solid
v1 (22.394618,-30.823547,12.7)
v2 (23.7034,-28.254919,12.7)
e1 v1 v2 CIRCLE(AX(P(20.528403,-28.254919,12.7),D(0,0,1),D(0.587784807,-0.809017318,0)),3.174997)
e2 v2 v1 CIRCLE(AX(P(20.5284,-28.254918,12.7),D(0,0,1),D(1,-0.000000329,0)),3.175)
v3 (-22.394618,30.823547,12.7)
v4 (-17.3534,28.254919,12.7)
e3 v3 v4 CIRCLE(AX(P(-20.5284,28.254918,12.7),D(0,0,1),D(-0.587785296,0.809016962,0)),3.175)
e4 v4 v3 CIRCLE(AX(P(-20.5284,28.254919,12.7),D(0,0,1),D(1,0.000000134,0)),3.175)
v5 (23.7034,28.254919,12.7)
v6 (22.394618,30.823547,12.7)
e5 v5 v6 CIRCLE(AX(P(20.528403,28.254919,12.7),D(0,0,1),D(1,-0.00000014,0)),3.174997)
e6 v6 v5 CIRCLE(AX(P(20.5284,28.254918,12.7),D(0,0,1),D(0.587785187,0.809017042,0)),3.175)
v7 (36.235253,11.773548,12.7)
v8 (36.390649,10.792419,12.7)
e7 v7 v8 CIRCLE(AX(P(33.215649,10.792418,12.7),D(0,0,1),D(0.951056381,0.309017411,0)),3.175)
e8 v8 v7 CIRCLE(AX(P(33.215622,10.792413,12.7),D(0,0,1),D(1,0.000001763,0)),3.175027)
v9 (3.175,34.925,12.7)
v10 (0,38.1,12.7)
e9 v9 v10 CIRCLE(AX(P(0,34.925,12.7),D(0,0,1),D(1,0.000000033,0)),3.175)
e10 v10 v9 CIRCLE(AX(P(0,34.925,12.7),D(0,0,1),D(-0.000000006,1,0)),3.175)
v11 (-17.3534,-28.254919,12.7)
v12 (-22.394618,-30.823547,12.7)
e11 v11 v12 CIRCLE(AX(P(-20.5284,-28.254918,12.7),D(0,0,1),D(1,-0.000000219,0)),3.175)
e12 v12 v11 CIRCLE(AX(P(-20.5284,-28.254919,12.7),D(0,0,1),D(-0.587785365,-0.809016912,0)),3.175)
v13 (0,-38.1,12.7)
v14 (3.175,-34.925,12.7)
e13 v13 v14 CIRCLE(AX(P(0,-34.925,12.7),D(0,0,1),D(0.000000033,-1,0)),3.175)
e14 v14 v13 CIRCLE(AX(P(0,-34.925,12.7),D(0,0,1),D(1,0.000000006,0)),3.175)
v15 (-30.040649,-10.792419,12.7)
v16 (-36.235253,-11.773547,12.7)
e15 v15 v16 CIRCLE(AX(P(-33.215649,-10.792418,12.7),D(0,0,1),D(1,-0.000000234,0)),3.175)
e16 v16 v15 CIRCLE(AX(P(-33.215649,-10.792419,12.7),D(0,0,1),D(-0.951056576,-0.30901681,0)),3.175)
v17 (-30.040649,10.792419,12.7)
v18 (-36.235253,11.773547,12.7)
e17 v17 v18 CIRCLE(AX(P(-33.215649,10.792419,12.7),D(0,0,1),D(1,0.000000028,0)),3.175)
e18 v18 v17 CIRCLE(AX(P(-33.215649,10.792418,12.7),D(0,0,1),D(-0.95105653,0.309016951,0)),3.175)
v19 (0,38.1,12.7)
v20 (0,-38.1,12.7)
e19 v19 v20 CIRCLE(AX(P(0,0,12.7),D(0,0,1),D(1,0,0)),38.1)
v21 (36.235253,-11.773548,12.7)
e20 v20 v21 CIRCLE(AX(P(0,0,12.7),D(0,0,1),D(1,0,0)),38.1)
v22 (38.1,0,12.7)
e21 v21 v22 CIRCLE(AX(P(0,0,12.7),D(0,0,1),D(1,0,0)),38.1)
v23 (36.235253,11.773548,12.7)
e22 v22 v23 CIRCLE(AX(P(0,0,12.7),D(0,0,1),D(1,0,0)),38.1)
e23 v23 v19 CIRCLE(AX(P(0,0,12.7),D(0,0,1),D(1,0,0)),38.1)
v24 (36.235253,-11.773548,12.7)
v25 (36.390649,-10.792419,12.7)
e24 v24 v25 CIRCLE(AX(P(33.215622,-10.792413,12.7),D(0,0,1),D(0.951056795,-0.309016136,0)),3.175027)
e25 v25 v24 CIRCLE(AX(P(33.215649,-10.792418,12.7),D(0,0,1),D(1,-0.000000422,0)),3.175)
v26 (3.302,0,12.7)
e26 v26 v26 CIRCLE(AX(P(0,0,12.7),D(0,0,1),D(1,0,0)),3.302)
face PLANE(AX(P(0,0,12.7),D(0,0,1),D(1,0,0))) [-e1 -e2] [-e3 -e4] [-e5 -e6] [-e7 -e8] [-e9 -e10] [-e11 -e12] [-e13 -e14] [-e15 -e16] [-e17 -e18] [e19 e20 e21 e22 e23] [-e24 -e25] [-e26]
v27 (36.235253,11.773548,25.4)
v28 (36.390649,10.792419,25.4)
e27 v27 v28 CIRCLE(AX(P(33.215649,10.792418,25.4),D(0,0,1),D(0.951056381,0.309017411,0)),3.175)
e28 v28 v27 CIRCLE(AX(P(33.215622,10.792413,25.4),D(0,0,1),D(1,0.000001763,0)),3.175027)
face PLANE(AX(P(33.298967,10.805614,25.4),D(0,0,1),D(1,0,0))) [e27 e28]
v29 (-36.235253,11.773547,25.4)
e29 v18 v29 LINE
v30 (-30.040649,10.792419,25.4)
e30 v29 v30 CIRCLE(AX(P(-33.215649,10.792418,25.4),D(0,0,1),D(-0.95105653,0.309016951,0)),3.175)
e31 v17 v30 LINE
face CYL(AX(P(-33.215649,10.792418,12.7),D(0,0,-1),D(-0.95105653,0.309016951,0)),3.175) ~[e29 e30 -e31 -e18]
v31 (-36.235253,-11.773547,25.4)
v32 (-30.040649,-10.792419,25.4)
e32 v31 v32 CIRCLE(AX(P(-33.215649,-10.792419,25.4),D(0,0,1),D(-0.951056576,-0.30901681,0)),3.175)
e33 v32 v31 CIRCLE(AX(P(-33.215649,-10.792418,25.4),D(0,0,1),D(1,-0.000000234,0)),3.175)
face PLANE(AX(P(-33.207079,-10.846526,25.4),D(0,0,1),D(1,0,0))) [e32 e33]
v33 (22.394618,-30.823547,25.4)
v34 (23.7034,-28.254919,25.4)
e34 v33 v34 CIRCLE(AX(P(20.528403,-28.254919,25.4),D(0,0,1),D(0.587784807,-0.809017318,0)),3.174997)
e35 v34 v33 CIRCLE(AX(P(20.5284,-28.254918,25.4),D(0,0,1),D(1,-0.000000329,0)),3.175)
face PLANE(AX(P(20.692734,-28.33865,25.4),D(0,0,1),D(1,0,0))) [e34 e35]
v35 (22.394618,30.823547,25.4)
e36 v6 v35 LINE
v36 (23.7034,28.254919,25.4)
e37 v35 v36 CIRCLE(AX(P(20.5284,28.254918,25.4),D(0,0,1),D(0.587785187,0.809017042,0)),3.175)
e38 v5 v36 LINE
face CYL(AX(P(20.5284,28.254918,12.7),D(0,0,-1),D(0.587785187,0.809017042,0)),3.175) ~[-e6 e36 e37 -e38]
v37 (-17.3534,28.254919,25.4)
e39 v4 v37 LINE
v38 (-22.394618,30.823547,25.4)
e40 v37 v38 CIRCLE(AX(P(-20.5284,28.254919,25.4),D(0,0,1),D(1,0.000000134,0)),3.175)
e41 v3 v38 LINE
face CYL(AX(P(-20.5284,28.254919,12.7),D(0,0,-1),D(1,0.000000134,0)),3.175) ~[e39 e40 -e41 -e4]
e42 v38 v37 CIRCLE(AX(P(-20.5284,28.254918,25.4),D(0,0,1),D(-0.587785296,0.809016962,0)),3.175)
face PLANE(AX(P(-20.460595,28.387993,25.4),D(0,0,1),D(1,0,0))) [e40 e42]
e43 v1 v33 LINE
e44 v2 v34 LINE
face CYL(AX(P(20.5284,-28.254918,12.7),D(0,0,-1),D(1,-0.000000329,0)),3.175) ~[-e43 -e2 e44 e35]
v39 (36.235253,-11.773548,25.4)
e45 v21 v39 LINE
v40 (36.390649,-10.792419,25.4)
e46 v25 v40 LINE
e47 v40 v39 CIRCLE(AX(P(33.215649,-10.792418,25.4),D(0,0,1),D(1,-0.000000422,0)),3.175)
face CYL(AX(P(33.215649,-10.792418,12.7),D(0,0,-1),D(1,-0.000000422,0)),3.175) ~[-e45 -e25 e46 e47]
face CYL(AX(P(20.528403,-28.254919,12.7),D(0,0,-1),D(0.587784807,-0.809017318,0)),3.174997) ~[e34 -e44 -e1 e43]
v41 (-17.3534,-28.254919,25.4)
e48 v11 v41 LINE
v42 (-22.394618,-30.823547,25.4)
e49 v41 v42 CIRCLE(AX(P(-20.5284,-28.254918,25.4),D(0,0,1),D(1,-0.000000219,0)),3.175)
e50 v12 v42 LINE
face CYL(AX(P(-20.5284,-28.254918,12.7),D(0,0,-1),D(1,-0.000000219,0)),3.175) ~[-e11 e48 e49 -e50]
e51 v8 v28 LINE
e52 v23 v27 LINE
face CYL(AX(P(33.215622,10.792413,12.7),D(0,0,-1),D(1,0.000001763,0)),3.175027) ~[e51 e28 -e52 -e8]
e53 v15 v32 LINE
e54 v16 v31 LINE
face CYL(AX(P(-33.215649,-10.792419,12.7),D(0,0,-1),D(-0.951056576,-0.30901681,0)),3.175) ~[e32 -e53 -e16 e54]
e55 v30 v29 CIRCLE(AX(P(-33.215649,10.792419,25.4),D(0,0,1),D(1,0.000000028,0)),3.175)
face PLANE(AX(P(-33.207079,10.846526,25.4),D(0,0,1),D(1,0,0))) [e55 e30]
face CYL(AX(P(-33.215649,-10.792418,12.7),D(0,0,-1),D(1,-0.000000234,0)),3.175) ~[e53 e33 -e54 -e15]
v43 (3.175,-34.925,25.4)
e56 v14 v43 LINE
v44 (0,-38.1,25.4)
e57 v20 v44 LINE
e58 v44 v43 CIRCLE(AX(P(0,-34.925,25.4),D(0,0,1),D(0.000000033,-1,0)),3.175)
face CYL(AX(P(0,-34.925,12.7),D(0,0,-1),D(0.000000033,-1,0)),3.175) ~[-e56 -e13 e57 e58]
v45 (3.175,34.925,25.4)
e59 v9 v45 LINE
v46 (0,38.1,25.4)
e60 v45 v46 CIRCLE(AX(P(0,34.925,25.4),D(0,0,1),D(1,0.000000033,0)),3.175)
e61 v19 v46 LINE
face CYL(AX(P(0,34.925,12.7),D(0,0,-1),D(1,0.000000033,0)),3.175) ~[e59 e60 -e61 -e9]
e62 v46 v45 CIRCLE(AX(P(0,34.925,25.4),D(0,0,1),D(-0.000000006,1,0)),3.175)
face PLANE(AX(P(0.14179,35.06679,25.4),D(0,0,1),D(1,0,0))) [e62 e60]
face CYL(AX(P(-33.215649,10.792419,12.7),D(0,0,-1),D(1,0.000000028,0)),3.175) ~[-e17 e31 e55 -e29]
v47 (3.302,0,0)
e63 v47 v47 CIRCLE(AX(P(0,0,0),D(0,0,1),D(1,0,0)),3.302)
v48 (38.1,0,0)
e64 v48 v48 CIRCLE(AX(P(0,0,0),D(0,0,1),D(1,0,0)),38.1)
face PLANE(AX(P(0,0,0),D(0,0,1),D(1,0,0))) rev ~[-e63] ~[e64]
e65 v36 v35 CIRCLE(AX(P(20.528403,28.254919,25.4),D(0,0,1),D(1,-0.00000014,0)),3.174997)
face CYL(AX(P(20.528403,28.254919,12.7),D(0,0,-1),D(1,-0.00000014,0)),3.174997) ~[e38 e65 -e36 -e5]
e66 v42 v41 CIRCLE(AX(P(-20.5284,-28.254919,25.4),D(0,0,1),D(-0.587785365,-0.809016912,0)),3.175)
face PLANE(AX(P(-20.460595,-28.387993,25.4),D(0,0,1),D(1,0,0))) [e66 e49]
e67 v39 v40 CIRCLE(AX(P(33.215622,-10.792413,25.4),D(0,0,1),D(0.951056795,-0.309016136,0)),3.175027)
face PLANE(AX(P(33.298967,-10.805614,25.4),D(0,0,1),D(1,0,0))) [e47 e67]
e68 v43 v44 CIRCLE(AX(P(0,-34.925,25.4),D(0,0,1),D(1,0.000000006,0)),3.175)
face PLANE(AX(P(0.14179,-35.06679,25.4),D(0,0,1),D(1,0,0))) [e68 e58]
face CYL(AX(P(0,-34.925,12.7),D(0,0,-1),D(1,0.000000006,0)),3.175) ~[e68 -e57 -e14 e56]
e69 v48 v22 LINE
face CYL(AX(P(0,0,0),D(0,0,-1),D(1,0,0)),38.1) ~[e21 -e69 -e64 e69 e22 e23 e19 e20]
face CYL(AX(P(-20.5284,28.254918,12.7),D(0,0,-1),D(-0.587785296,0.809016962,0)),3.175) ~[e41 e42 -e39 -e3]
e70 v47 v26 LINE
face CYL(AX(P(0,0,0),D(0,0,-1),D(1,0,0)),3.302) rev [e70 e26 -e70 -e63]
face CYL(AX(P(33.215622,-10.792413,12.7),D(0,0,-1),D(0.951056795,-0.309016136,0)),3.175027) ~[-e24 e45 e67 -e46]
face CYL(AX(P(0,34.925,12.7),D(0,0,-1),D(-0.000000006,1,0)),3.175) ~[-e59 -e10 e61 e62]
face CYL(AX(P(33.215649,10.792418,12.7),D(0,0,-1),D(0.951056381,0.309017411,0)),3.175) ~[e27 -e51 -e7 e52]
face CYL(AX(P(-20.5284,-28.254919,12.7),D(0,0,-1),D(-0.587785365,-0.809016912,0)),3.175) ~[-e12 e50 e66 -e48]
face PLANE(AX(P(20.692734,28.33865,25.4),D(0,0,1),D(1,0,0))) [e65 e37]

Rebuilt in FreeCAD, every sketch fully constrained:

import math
import FreeCAD as App
import Part
import Sketcher
from FreeCAD import Vector
Q = App.Units.Quantity

doc = App.newDocument("Part")
body = doc.addObject("PartDesign::Body", "Body")

sketch1 = body.newObject("Sketcher::SketchObject", "Sketch")
sketch1.AttachmentSupport = (doc.getObject("XY_Plane"), [""])
sketch1.MapMode = "FlatFace"
sketch1.addGeometry(Part.Circle(Vector(0, 0, 0), Vector(0, 0, 1), 38.1), False)
sketch1.addGeometry(Part.Circle(Vector(0, 0, 0), Vector(0, 0, 1), 3.3), False)
sketch1.addConstraint(Sketcher.Constraint("Coincident", 0, 3, -1, 1))
sketch1.addConstraint(Sketcher.Constraint("Coincident", 1, 3, -1, 1))
sketch1.addConstraint(Sketcher.Constraint("Diameter", 0, Q("3 in")))
sketch1.addConstraint(Sketcher.Constraint("Diameter", 1, Q("0.26 in")))
pad1 = body.newObject("PartDesign::Pad", "Pad")
pad1.Profile = sketch1
pad1.Length = Q("0.5 in")

sketch2 = body.newObject("Sketcher::SketchObject", "Sketch001")
sketch2.AttachmentSupport = (doc.getObject("XY_Plane"), [""])
sketch2.MapMode = "FlatFace"
sketch2.AttachmentOffset = App.Placement(Vector(0, 0, 0.5 * 25.4), App.Rotation())
sketch2.addGeometry(Part.ArcOfCircle(Part.Circle(Vector(20.528403, 28.254919, 0), Vector(0, 0, 1), 3.174997), math.radians(-0.000008), math.radians(54.000032)), False)
sketch2.addGeometry(Part.ArcOfCircle(Part.Circle(Vector(20.5284, 28.254918, 0), Vector(0, 0, 1), 3.175), math.radians(54.000005), math.radians(360.000019)), False)
sketch2.addGeometry(Part.ArcOfCircle(Part.Circle(Vector(33.215622, 10.792413, 0), Vector(0, 0, 1), 3.175027), math.radians(0.000101), math.radians(17.999948)), False)
sketch2.addGeometry(Part.ArcOfCircle(Part.Circle(Vector(33.215649, 10.792418, 0), Vector(0, 0, 1), 3.175), math.radians(18.000025), math.radians(360.000024)), False)
sketch2.addGeometry(Part.ArcOfCircle(Part.Circle(Vector(33.215649, -10.792418, 0), Vector(0, 0, 1), 3.175), math.radians(-0.000024), math.radians(341.999975)), False)
sketch2.addGeometry(Part.ArcOfCircle(Part.Circle(Vector(33.215622, -10.792413, 0), Vector(0, 0, 1), 3.175027), math.radians(-17.999948), math.radians(-0.000101)), False)
sketch2.addGeometry(Part.ArcOfCircle(Part.Circle(Vector(20.5284, -28.254918, 0), Vector(0, 0, 1), 3.175), math.radians(-0.000019), math.radians(305.999995)), False)
sketch2.addGeometry(Part.ArcOfCircle(Part.Circle(Vector(20.528403, -28.254919, 0), Vector(0, 0, 1), 3.174997), math.radians(-54.000032), math.radians(0.000008)), False)
sketch2.addConstraint(Sketcher.Constraint("Coincident", 0, 1, 1, 2))
sketch2.addConstraint(Sketcher.Constraint("Coincident", 1, 1, 0, 2))
sketch2.addConstraint(Sketcher.Constraint("Coincident", 2, 1, 3, 2))
sketch2.addConstraint(Sketcher.Constraint("Coincident", 3, 1, 2, 2))
sketch2.addConstraint(Sketcher.Constraint("Coincident", 4, 1, 5, 2))
sketch2.addConstraint(Sketcher.Constraint("Coincident", 5, 1, 4, 2))
sketch2.addConstraint(Sketcher.Constraint("Coincident", 6, 1, 7, 2))
sketch2.addConstraint(Sketcher.Constraint("Coincident", 7, 1, 6, 2))
sketch2.addConstraint(Sketcher.Constraint("Radius", 0, Q("0.1249999 in")))
sketch2.addConstraint(Sketcher.Constraint("Radius", 1, Q("0.125 in")))
sketch2.addConstraint(Sketcher.Constraint("Radius", 3, Q("0.125 in")))
sketch2.addConstraint(Sketcher.Constraint("Radius", 4, Q("0.125 in")))
sketch2.addConstraint(Sketcher.Constraint("Radius", 6, Q("0.125 in")))
sketch2.addConstraint(Sketcher.Constraint("Radius", 7, Q("0.1249999 in")))
sketch2.addConstraint(Sketcher.Constraint("DistanceY", 3, 3, 0, 3, Q("0.6875001 in")))
sketch2.addConstraint(Sketcher.Constraint("DistanceY", 6, 3, 4, 3, Q("0.6875 in")))
sketch2.addConstraint(Sketcher.Constraint("DistanceY", 3, 3, 0, 1, Q("0.6875001 in")))
sketch2.addConstraint(Sketcher.Constraint("DistanceY", 2, 1, 0, 1, Q("0.6875 in")))
sketch2.addConstraint(Sketcher.Constraint("DistanceX", 4, 3, 2, 1, Q("0.125 in")))
sketch2.addConstraint(Sketcher.Constraint("DistanceY", 6, 1, 4, 3, Q("0.6875001 in")))
sketch2.addConstraint(Sketcher.Constraint("Radius", 2, 3.175027))
sketch2.addConstraint(Sketcher.Constraint("Radius", 5, 3.175027))
sketch2.addConstraint(Sketcher.Constraint("DistanceX", -1, 1, 1, 3, 20.5284))
sketch2.addConstraint(Sketcher.Constraint("DistanceX", -1, 1, 6, 3, 20.5284))
sketch2.addConstraint(Sketcher.Constraint("DistanceY", -1, 1, 0, 3, 28.254919))
sketch2.addConstraint(Sketcher.Constraint("DistanceX", -1, 1, 2, 3, 33.215622))
sketch2.addConstraint(Sketcher.Constraint("DistanceY", 7, 3, -1, 1, 28.254919))
sketch2.addConstraint(Sketcher.Constraint("DistanceY", -1, 1, 3, 1, 11.773548))
sketch2.addConstraint(Sketcher.Constraint("DistanceY", 4, 1, -1, 1, 10.792419))
sketch2.addConstraint(Sketcher.Constraint("DistanceY", 5, 1, -1, 1, 11.773548))
sketch2.addConstraint(Sketcher.Constraint("DistanceY", 1, 3, 1, 1, 2.568629))
sketch2.addConstraint(Sketcher.Constraint("DistanceY", 7, 1, 6, 3, 2.568629))
pad2 = body.newObject("PartDesign::Pad", "Pad001")
pad2.Profile = sketch2
pad2.Length = Q("0.5 in")

sketch3 = body.newObject("Sketcher::SketchObject", "Sketch002")
sketch3.AttachmentSupport = (doc.getObject("XY_Plane"), [""])
sketch3.MapMode = "FlatFace"
sketch3.AttachmentOffset = App.Placement(Vector(0, 0, 0.5 * 25.4), App.Rotation())
sketch3.addGeometry(Part.ArcOfCircle(Part.Circle(Vector(0, 34.9, 0), Vector(0, 0, 1), 3.2), math.radians(90), math.radians(360)), False)
sketch3.addGeometry(Part.ArcOfCircle(Part.Circle(Vector(0, 34.9, 0), Vector(0, 0, 1), 3.2), math.radians(0), math.radians(90)), False)
sketch3.addGeometry(Part.ArcOfCircle(Part.Circle(Vector(-20.5, 28.3, 0), Vector(0, 0, 1), 3.2), math.radians(0), math.radians(126)), False)
sketch3.addGeometry(Part.ArcOfCircle(Part.Circle(Vector(-20.5, 28.3, 0), Vector(0, 0, 1), 3.2), math.radians(126), math.radians(360)), False)
sketch3.addGeometry(Part.ArcOfCircle(Part.Circle(Vector(-33.2, 10.8, 0), Vector(0, 0, 1), 3.2), math.radians(0), math.radians(162)), False)
sketch3.addGeometry(Part.ArcOfCircle(Part.Circle(Vector(-33.2, 10.8, 0), Vector(0, 0, 1), 3.2), math.radians(162), math.radians(360)), False)
sketch3.addGeometry(Part.ArcOfCircle(Part.Circle(Vector(-33.2, -10.8, 0), Vector(0, 0, 1), 3.2), math.radians(0), math.radians(198)), False)
sketch3.addGeometry(Part.ArcOfCircle(Part.Circle(Vector(-33.2, -10.8, 0), Vector(0, 0, 1), 3.2), math.radians(-162), math.radians(0)), False)
sketch3.addGeometry(Part.ArcOfCircle(Part.Circle(Vector(-20.5, -28.3, 0), Vector(0, 0, 1), 3.2), math.radians(0), math.radians(234)), False)
sketch3.addGeometry(Part.ArcOfCircle(Part.Circle(Vector(-20.5, -28.3, 0), Vector(0, 0, 1), 3.2), math.radians(-126), math.radians(0)), False)
sketch3.addGeometry(Part.ArcOfCircle(Part.Circle(Vector(0, -34.9, 0), Vector(0, 0, 1), 3.2), math.radians(0), math.radians(270)), False)
sketch3.addGeometry(Part.ArcOfCircle(Part.Circle(Vector(0, -34.9, 0), Vector(0, 0, 1), 3.2), math.radians(-90), math.radians(0)), False)
sketch3.addConstraint(Sketcher.Constraint("Tangent", 0, 1, 1, 2))
sketch3.addConstraint(Sketcher.Constraint("Coincident", 1, 1, 0, 2))
sketch3.addConstraint(Sketcher.Constraint("Tangent", 2, 1, 3, 2))
sketch3.addConstraint(Sketcher.Constraint("Coincident", 3, 1, 2, 2))
sketch3.addConstraint(Sketcher.Constraint("Tangent", 4, 1, 5, 2))
sketch3.addConstraint(Sketcher.Constraint("Coincident", 5, 1, 4, 2))
sketch3.addConstraint(Sketcher.Constraint("Tangent", 6, 1, 7, 2))
sketch3.addConstraint(Sketcher.Constraint("Coincident", 7, 1, 6, 2))
sketch3.addConstraint(Sketcher.Constraint("Tangent", 8, 1, 9, 2))
sketch3.addConstraint(Sketcher.Constraint("Coincident", 9, 1, 8, 2))
sketch3.addConstraint(Sketcher.Constraint("Tangent", 10, 1, 11, 2))
sketch3.addConstraint(Sketcher.Constraint("Coincident", 11, 1, 10, 2))
sketch3.addConstraint(Sketcher.Constraint("Equal", 1, 2))
sketch3.addConstraint(Sketcher.Constraint("Equal", 3, 4))
sketch3.addConstraint(Sketcher.Constraint("Equal", 5, 6))
sketch3.addConstraint(Sketcher.Constraint("Equal", 7, 8))
sketch3.addConstraint(Sketcher.Constraint("Equal", 9, 10))
sketch3.addConstraint(Sketcher.Constraint("Symmetric", 0, 3, 10, 3, -1, 1))
sketch3.addConstraint(Sketcher.Constraint("Symmetric", 4, 3, 6, 3, -1))
sketch3.addConstraint(Sketcher.Constraint("Symmetric", 2, 3, 8, 3, -1))
sketch3.addConstraint(Sketcher.Constraint("Symmetric", 1, 1, 10, 1, -1))
sketch3.addConstraint(Sketcher.Constraint("PointOnObject", 0, 1, -2))
sketch3.addConstraint(Sketcher.Constraint("PointOnObject", 11, 1, -2))
sketch3.addConstraint(Sketcher.Constraint("Horizontal", 0, 3, 1, 1))
sketch3.addConstraint(Sketcher.Constraint("Horizontal", 3, 3, 2, 1))
sketch3.addConstraint(Sketcher.Constraint("Horizontal", 5, 3, 4, 1))
sketch3.addConstraint(Sketcher.Constraint("Horizontal", 7, 3, 6, 1))
sketch3.addConstraint(Sketcher.Constraint("Horizontal", 9, 3, 8, 1))
sketch3.addConstraint(Sketcher.Constraint("Vertical", 5, 1, 7, 1))
sketch3.addConstraint(Sketcher.Constraint("Vertical", 3, 1, 9, 1))
sketch3.addConstraint(Sketcher.Constraint("Radius", 0, Q("0.125 in")))
sketch3.addConstraint(Sketcher.Constraint("DistanceY", -1, 1, 0, 1, Q("1.5 in")))
sketch3.addConstraint(Sketcher.Constraint("DistanceY", 4, 3, 3, 3, Q("0.6875 in")))
sketch3.addConstraint(Sketcher.Constraint("DistanceX", 2, 3, -1, 1, 20.5284))
sketch3.addConstraint(Sketcher.Constraint("DistanceY", -1, 1, 2, 3, 28.254919))
sketch3.addConstraint(Sketcher.Constraint("DistanceX", 4, 3, -1, 1, 33.215649))
sketch3.addConstraint(Sketcher.Constraint("DistanceX", 3, 1, -1, 1, 22.394618))
sketch3.addConstraint(Sketcher.Constraint("DistanceY", 4, 3, 5, 1, 0.981128))
pad3 = body.newObject("PartDesign::Pad", "Pad002")
pad3.Profile = sketch3
pad3.Length = Q("0.5 in")

doc.recompute()
